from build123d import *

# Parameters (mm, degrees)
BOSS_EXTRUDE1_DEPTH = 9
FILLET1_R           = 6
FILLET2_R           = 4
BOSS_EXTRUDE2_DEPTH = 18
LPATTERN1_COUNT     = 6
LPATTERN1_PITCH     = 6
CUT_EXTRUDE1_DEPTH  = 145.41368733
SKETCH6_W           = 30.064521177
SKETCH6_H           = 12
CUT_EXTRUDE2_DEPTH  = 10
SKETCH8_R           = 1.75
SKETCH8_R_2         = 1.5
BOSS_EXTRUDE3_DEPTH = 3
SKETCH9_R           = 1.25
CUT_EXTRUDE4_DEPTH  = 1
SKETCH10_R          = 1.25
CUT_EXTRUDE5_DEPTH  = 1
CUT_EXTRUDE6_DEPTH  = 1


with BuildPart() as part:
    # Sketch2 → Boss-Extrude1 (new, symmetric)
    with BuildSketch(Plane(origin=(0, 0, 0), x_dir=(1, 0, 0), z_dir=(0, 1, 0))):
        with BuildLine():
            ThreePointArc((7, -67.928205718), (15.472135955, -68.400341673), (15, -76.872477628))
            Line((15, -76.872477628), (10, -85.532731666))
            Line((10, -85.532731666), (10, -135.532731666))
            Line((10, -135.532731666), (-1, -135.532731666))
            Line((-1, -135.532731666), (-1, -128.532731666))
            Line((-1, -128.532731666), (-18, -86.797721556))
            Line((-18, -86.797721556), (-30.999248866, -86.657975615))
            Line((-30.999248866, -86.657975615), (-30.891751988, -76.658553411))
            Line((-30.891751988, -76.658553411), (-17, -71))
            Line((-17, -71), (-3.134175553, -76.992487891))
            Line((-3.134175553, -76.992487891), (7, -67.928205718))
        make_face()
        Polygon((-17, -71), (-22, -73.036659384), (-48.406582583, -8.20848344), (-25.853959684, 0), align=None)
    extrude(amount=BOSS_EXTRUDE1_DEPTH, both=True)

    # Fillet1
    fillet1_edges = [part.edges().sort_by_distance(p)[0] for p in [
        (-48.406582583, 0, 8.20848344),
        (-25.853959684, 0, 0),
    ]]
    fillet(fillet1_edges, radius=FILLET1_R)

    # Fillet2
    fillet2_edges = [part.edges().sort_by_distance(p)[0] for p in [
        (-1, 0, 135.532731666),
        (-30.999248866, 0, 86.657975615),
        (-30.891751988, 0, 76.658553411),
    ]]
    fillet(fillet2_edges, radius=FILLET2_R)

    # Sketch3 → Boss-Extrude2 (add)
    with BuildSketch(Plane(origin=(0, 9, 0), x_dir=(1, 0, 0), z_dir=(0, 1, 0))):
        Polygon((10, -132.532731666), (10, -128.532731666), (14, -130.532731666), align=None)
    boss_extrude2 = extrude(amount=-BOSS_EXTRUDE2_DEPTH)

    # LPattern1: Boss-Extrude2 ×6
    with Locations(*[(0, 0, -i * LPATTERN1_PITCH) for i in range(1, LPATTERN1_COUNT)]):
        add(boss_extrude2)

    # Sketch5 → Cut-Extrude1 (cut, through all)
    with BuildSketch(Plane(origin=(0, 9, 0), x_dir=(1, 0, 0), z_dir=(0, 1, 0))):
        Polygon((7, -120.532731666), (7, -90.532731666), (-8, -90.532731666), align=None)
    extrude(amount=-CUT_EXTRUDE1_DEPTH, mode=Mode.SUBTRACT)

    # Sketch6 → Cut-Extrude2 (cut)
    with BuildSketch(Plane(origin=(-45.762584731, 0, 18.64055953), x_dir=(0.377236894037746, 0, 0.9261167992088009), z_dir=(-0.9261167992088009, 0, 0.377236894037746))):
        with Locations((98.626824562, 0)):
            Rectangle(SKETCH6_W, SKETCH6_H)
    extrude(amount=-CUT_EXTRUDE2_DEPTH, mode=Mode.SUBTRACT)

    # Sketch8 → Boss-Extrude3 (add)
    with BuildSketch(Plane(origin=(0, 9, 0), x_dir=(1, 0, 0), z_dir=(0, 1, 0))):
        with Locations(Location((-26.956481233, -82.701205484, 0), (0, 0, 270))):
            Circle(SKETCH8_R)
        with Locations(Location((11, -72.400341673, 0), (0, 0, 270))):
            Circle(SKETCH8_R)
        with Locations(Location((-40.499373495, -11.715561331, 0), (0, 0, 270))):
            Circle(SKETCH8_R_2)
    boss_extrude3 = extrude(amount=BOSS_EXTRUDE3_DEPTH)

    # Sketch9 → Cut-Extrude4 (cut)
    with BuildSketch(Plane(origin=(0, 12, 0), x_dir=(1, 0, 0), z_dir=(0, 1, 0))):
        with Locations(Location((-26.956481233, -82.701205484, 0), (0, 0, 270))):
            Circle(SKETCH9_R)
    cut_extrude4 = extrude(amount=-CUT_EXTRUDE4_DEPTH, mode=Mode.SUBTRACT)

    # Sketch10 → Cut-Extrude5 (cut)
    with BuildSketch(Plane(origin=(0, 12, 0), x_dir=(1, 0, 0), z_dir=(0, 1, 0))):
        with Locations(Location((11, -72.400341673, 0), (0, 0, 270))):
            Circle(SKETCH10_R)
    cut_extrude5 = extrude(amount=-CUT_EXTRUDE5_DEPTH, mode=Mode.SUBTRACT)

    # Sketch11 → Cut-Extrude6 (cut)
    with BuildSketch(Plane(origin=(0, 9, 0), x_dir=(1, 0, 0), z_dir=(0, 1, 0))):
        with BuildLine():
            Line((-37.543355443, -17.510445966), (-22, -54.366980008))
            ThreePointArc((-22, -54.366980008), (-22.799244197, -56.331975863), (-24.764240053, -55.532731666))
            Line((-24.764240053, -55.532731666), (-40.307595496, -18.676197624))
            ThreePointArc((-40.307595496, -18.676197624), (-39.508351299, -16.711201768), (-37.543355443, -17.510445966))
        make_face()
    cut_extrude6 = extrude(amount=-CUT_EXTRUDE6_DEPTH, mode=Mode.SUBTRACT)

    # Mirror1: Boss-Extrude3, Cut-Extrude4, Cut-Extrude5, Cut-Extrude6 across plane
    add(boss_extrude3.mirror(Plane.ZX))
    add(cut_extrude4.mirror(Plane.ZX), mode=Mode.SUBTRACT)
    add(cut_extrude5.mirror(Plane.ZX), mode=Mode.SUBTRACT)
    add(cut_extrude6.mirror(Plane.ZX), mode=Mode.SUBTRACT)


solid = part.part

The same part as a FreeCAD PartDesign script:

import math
import FreeCAD as App
import Part
import Sketcher

V = App.Vector
Q = App.Units.Quantity


def edges_at(feature, points):
    """Names of the edges that pass closest to the given points."""
    edges = feature.Shape.Edges
    near = lambda p: min(range(len(edges)), key=lambda i: edges[i].distToShape(Part.Vertex(*p))[0])
    return sorted({f"Edge{near(p) + 1}" for p in points})


def add_polygon(sketch, points):
    """Adds a closed chain of lines whose ends are joined by coincident constraints."""
    first, n = sketch.GeometryCount, len(points)
    for a, b in zip(points, points[1:] + points[:1]):
        sketch.addGeometry(Part.LineSegment(App.Vector(*a, 0), App.Vector(*b, 0)), False)
    for i in range(n):
        sketch.addConstraint(Sketcher.Constraint("Coincident", first + i, 2, first + (i + 1) % n, 1))

doc = App.newDocument("Part")
body = doc.addObject("PartDesign::Body", "Body")

# Sketch on XZ plane
sketch1 = body.newObject("Sketcher::SketchObject", "Sketch")
sketch1.AttachmentSupport = (doc.getObject("XZ_Plane"), [""])
sketch1.MapMode = "FlatFace"
sketch1.addGeometry(Part.ArcOfCircle(Part.Circle(V(11, 72, 0), V(0, 0, 1), 6), math.radians(-132), math.radians(48)), False)
sketch1.addGeometry(Part.LineSegment(V(7, 68, 0), V(-3, 77, 0)), False)
sketch1.addGeometry(Part.LineSegment(V(-3, 77, 0), V(-17, 71, 0)), False)
sketch1.addGeometry(Part.LineSegment(V(-17, 71, 0), V(-26, 0, 0)), False)
sketch1.addGeometry(Part.LineSegment(V(-26, 0, 0), V(-48, 8, 0)), False)
sketch1.addGeometry(Part.LineSegment(V(-48, 8, 0), V(-22, 73, 0)), False)
sketch1.addGeometry(Part.LineSegment(V(-22, 73, 0), V(-31, 77, 0)), False)
sketch1.addGeometry(Part.LineSegment(V(-31, 77, 0), V(-31, 87, 0)), False)
sketch1.addGeometry(Part.LineSegment(V(-31, 87, 0), V(-18, 87, 0)), False)
sketch1.addGeometry(Part.LineSegment(V(-18, 87, 0), V(-1, 129, 0)), False)
sketch1.addGeometry(Part.LineSegment(V(-1, 129, 0), V(-1, 136, 0)), False)
sketch1.addGeometry(Part.LineSegment(V(-1, 136, 0), V(10, 136, 0)), False)
sketch1.addGeometry(Part.LineSegment(V(10, 136, 0), V(10, 86, 0)), False)
sketch1.addGeometry(Part.LineSegment(V(10, 86, 0), V(15, 77, 0)), False)
sketch1.addConstraint(Sketcher.Constraint("Tangent", 0, 1, 1, 1))
sketch1.addConstraint(Sketcher.Constraint("Coincident", 1, 2, 2, 1))
sketch1.addConstraint(Sketcher.Constraint("Coincident", 2, 2, 3, 1))
sketch1.addConstraint(Sketcher.Constraint("Coincident", 3, 2, 4, 1))
sketch1.addConstraint(Sketcher.Constraint("Coincident", 4, 2, 5, 1))
sketch1.addConstraint(Sketcher.Constraint("Coincident", 5, 2, 6, 1))
sketch1.addConstraint(Sketcher.Constraint("Coincident", 6, 2, 7, 1))
sketch1.addConstraint(Sketcher.Constraint("Coincident", 7, 2, 8, 1))
sketch1.addConstraint(Sketcher.Constraint("Coincident", 8, 2, 9, 1))
sketch1.addConstraint(Sketcher.Constraint("Coincident", 9, 2, 10, 1))
sketch1.addConstraint(Sketcher.Constraint("Coincident", 10, 2, 11, 1))
sketch1.addConstraint(Sketcher.Constraint("Coincident", 11, 2, 12, 1))
sketch1.addConstraint(Sketcher.Constraint("Coincident", 12, 2, 13, 1))
sketch1.addConstraint(Sketcher.Constraint("Coincident", 13, 2, 0, 2))
sketch1.addConstraint(Sketcher.Constraint("Vertical", 10))
sketch1.addConstraint(Sketcher.Constraint("Horizontal", 11))
sketch1.addConstraint(Sketcher.Constraint("Vertical", 12))
sketch1.addConstraint(Sketcher.Constraint("PointOnObject", 3, 2, -1))
sketch1.addConstraint(Sketcher.Constraint("Perpendicular", 5, 6))
sketch1.addConstraint(Sketcher.Constraint("Perpendicular", 7, 8))
sketch1.addConstraint(Sketcher.Constraint("Perpendicular", 6, 9))
sketch1.addConstraint(Sketcher.Constraint("Equal", 7, 13))
sketch1.addConstraint(Sketcher.Constraint("Radius", 0, 6.0))
sketch1.addConstraint(Sketcher.Constraint("DistanceX", 11, 1, 11, 2, 11.0))
sketch1.addConstraint(Sketcher.Constraint("DistanceY", 10, 1, 10, 2, 7.0))
sketch1.addConstraint(Sketcher.Constraint("DistanceY", 12, 2, 12, 1, 50.0))
sketch1.addConstraint(Sketcher.Constraint("Angle", 4, Q("160 deg")))
sketch1.addConstraint(Sketcher.Constraint("Angle", 13, Q("-60 deg")))
sketch1.addConstraint(Sketcher.Constraint("Distance", 4, 24.0))
sketch1.addConstraint(Sketcher.Constraint("Distance", 5, 70.0))
sketch1.addConstraint(Sketcher.Constraint("Distance", 7, 10.0))
sketch1.addConstraint(Sketcher.Constraint("Distance", 8, 13.0))
sketch1.addConstraint(Sketcher.Constraint("DistanceX", -1, 1, 0, 3, 11.0))
sketch1.addConstraint(Sketcher.Constraint("DistanceX", -1, 1, 0, 1, 7.0))
sketch1.addConstraint(Sketcher.Constraint("DistanceX", 2, 2, -1, 1, 17.0))
sketch1.addConstraint(Sketcher.Constraint("DistanceY", -1, 1, 2, 2, 71.0))
sketch1.addConstraint(Sketcher.Constraint("DistanceX", 5, 2, -1, 1, 22.0))
sketch1.addConstraint(Sketcher.Constraint("DistanceX", 8, 2, -1, 1, 18.0))
sketch1.addConstraint(Sketcher.Constraint("DistanceX", 9, 2, -1, 1, 1.0))
sketch1.addConstraint(Sketcher.Constraint("Distance", 2, 15.10533))
sketch1.addConstraint(Sketcher.Constraint("Distance", 3, 71.549931))
sketch1.addConstraint(Sketcher.Constraint("DistanceY", -1, 1, 0, 3, 72.400342))
pad1 = body.newObject("PartDesign::Pad", "Pad")
pad1.Profile = sketch1
pad1.Length = 18
pad1.Midplane = True
doc.recompute()

fillet = body.newObject("PartDesign::Fillet", "Fillet")
fillet.Base = (pad1, edges_at(pad1, [(-48.407, 0, 8.208), (-25.854, 0, 0)]))
fillet.Radius = 6
doc.recompute()

fillet2 = body.newObject("PartDesign::Fillet", "Fillet001")
fillet2.Base = (fillet, edges_at(fillet, [(-1, 0, 135.533), (-30.999, 0, 86.658), (-30.892, 0, 76.659)]))
fillet2.Radius = 4

# Sketch on XZ plane
sketch2 = body.newObject("Sketcher::SketchObject", "Sketch001")
sketch2.AttachmentSupport = (doc.getObject("XZ_Plane"), [""])
sketch2.MapMode = "FlatFace"
sketch2.AttachmentOffset = App.Placement(V(0, 0, -9), App.Rotation())
add_polygon(sketch2, [(10, 128.5), (10, 132.5), (14, 130.5)])  # lines 0-2
sketch2.addConstraint(Sketcher.Constraint("Vertical", 0))
sketch2.addConstraint(Sketcher.Constraint("Equal", 1, 2))
sketch2.addConstraint(Sketcher.Constraint("DistanceY", 0, 1, 0, 2, 4.0))
sketch2.addConstraint(Sketcher.Constraint("DistanceX", -1, 1, 0, 2, 10.0))
sketch2.addConstraint(Sketcher.Constraint("DistanceX", -1, 1, 1, 2, 14.0))
sketch2.addConstraint(Sketcher.Constraint("DistanceY", -1, 1, 0, 2, 132.532732))
pad2 = body.newObject("PartDesign::Pad", "Pad001")
pad2.Profile = sketch2
pad2.Length = 18
doc.recompute()

linearpattern = body.newObject("PartDesign::LinearPattern", "LinearPattern")
linearpattern.Originals = [pad2]
linearpattern.Direction = (doc.getObject("Z_Axis"), [""])
linearpattern.Mode = "offset"
linearpattern.Offset = 6
linearpattern.Occurrences = 6
linearpattern.Reversed = True
body.Tip = linearpattern

# Sketch on XZ plane
sketch3 = body.newObject("Sketcher::SketchObject", "Sketch002")
sketch3.AttachmentSupport = (doc.getObject("XZ_Plane"), [""])
sketch3.MapMode = "FlatFace"
sketch3.AttachmentOffset = App.Placement(V(0, 0, -9), App.Rotation())
add_polygon(sketch3, [(7, 121), (7, 91), (-8, 91)])  # lines 0-2
sketch3.addConstraint(Sketcher.Constraint("Vertical", 0))
sketch3.addConstraint(Sketcher.Constraint("Horizontal", 1))
sketch3.addConstraint(Sketcher.Constraint("DistanceX", 1, 2, 1, 1, 15.0))
sketch3.addConstraint(Sketcher.Constraint("DistanceY", 0, 2, 0, 1, 30.0))
sketch3.addConstraint(Sketcher.Constraint("DistanceX", -1, 1, 0, 2, 7.0))
sketch3.addConstraint(Sketcher.Constraint("DistanceY", -1, 1, 0, 2, 90.532732))
pocket1 = body.newObject("PartDesign::Pocket", "Pocket")
pocket1.Profile = sketch3
pocket1.Type = "ThroughAll"
pocket1.Reversed = True

# Sketch on an angled plane
sketch4 = body.newObject("Sketcher::SketchObject", "Sketch003")
sketch4.Placement = App.Placement(V(-45.762585, 0, 18.64056), App.Rotation(V(0.377236894, 0, 0.926116799), V(0, 1, 0), V(-0.926116799, 0, 0.377236894), "ZXY"))
add_polygon(sketch4, [(84, 6), (84, -6), (114, -6), (114, 6)])  # lines 0-3
sketch4.addConstraint(Sketcher.Constraint("Vertical", 0))
sketch4.addConstraint(Sketcher.Constraint("Horizontal", 1))
sketch4.addConstraint(Sketcher.Constraint("Vertical", 2))
sketch4.addConstraint(Sketcher.Constraint("Horizontal", 3))
sketch4.addConstraint(Sketcher.Constraint("DistanceY", 0, 2, 0, 1, 12.0))
sketch4.addConstraint(Sketcher.Constraint("DistanceY", 0, 2, -1, 1, 6.0))
sketch4.addConstraint(Sketcher.Constraint("DistanceX", 1, 1, 1, 2, 30.064521))
sketch4.addConstraint(Sketcher.Constraint("DistanceX", -1, 1, 0, 2, 83.594564))
pocket2 = body.newObject("PartDesign::Pocket", "Pocket001")
pocket2.Profile = sketch4
pocket2.Length = 10

# Sketch on XZ plane
sketch5 = body.newObject("Sketcher::SketchObject", "Sketch004")
sketch5.AttachmentSupport = (doc.getObject("XZ_Plane"), [""])
sketch5.MapMode = "FlatFace"
sketch5.AttachmentOffset = App.Placement(V(0, 0, -9), App.Rotation())
sketch5.addGeometry(Part.Circle(V(-27, 82.7, 0), V(0, 0, 1), 1.8), False)
sketch5.addGeometry(Part.Circle(V(11, 72.4, 0), V(0, 0, 1), 1.8), False)
sketch5.addGeometry(Part.Circle(V(-40.5, 11.7, 0), V(0, 0, 1), 1.5), False)
sketch5.addConstraint(Sketcher.Constraint("Equal", 0, 1))
sketch5.addConstraint(Sketcher.Constraint("Diameter", 2, 3.0))
sketch5.addConstraint(Sketcher.Constraint("Diameter", 0, 3.5))
sketch5.addConstraint(Sketcher.Constraint("DistanceX", -1, 1, 1, 3, 11.0))
sketch5.addConstraint(Sketcher.Constraint("DistanceX", 0, 3, -1, 1, 26.956481))
sketch5.addConstraint(Sketcher.Constraint("DistanceY", -1, 1, 1, 3, 72.400342))
sketch5.addConstraint(Sketcher.Constraint("DistanceY", -1, 1, 2, 3, 11.715561))
sketch5.addConstraint(Sketcher.Constraint("DistanceY", -1, 1, 0, 3, 82.701205))
sketch5.addConstraint(Sketcher.Constraint("DistanceX", 2, 3, -1, 1, 40.499373))
pad3 = body.newObject("PartDesign::Pad", "Pad002")
pad3.Profile = sketch5
pad3.Length = 3
pad3.Reversed = True

# Sketch on XZ plane
sketch6 = body.newObject("Sketcher::SketchObject", "Sketch005")
sketch6.AttachmentSupport = (doc.getObject("XZ_Plane"), [""])
sketch6.MapMode = "FlatFace"
sketch6.AttachmentOffset = App.Placement(V(0, 0, -12), App.Rotation())
sketch6.addGeometry(Part.Circle(V(-27, 82.7, 0), V(0, 0, 1), 1.2), False)
sketch6.addConstraint(Sketcher.Constraint("Diameter", 0, 2.5))
sketch6.addConstraint(Sketcher.Constraint("DistanceX", 0, 3, -1, 1, 26.956481))
sketch6.addConstraint(Sketcher.Constraint("DistanceY", -1, 1, 0, 3, 82.701205))
pocket3 = body.newObject("PartDesign::Pocket", "Pocket002")
pocket3.Profile = sketch6
pocket3.Length = 1
pocket3.Reversed = True

# Sketch on XZ plane
sketch7 = body.newObject("Sketcher::SketchObject", "Sketch006")
sketch7.AttachmentSupport = (doc.getObject("XZ_Plane"), [""])
sketch7.MapMode = "FlatFace"
sketch7.AttachmentOffset = App.Placement(V(0, 0, -12), App.Rotation())
sketch7.addGeometry(Part.Circle(V(11, 72.4, 0), V(0, 0, 1), 1.2), False)
sketch7.addConstraint(Sketcher.Constraint("Diameter", 0, 2.5))
sketch7.addConstraint(Sketcher.Constraint("DistanceX", -1, 1, 0, 3, 11.0))
sketch7.addConstraint(Sketcher.Constraint("DistanceY", -1, 1, 0, 3, 72.400342))
pocket4 = body.newObject("PartDesign::Pocket", "Pocket003")
pocket4.Profile = sketch7
pocket4.Length = 1
pocket4.Reversed = True

# Sketch on XZ plane
sketch8 = body.newObject("Sketcher::SketchObject", "Sketch007")
sketch8.AttachmentSupport = (doc.getObject("XZ_Plane"), [""])
sketch8.MapMode = "FlatFace"
sketch8.AttachmentOffset = App.Placement(V(0, 0, -9), App.Rotation())
sketch8.addGeometry(Part.LineSegment(V(-22, 54.4, 0), V(-37.5, 17.5, 0)), False)
sketch8.addGeometry(Part.ArcOfCircle(Part.Circle(V(-38.9, 18.1, 0), V(0, 0, 1), 1.5), math.radians(157), math.radians(337)), False)
sketch8.addGeometry(Part.LineSegment(V(-40.3, 18.7, 0), V(-24.8, 55.5, 0)), False)
sketch8.addGeometry(Part.ArcOfCircle(Part.Circle(V(-23.4, 54.9, 0), V(0, 0, 1), 1.5), math.radians(-23), math.radians(157)), False)
sketch8.addConstraint(Sketcher.Constraint("Tangent", 0, 2, 1, 2))
sketch8.addConstraint(Sketcher.Constraint("Tangent", 1, 1, 2, 1))
sketch8.addConstraint(Sketcher.Constraint("Tangent", 2, 2, 3, 2))
sketch8.addConstraint(Sketcher.Constraint("Tangent", 3, 1, 0, 1))
sketch8.addConstraint(Sketcher.Constraint("Equal", 1, 3))
sketch8.addConstraint(Sketcher.Constraint("Radius", 1, 1.5))
sketch8.addConstraint(Sketcher.Constraint("Distance", 0, 40.0))
sketch8.addConstraint(Sketcher.Constraint("DistanceX", 3, 1, -1, 1, 22.0))
sketch8.addConstraint(Sketcher.Constraint("DistanceY", -1, 1, 1, 3, 18.093322))
sketch8.addConstraint(Sketcher.Constraint("DistanceX", 3, 3, -1, 1, 23.38212))
pocket5 = body.newObject("PartDesign::Pocket", "Pocket004")
pocket5.Profile = sketch8
pocket5.Length = 1
pocket5.Reversed = True
doc.recompute()

mirrored = body.newObject("PartDesign::Mirrored", "Mirrored")
mirrored.Originals = [pad3, pocket3, pocket4, pocket5]
mirrored.MirrorPlane = (doc.getObject("XZ_Plane"), [""])
body.Tip = mirrored

doc.recompute()
